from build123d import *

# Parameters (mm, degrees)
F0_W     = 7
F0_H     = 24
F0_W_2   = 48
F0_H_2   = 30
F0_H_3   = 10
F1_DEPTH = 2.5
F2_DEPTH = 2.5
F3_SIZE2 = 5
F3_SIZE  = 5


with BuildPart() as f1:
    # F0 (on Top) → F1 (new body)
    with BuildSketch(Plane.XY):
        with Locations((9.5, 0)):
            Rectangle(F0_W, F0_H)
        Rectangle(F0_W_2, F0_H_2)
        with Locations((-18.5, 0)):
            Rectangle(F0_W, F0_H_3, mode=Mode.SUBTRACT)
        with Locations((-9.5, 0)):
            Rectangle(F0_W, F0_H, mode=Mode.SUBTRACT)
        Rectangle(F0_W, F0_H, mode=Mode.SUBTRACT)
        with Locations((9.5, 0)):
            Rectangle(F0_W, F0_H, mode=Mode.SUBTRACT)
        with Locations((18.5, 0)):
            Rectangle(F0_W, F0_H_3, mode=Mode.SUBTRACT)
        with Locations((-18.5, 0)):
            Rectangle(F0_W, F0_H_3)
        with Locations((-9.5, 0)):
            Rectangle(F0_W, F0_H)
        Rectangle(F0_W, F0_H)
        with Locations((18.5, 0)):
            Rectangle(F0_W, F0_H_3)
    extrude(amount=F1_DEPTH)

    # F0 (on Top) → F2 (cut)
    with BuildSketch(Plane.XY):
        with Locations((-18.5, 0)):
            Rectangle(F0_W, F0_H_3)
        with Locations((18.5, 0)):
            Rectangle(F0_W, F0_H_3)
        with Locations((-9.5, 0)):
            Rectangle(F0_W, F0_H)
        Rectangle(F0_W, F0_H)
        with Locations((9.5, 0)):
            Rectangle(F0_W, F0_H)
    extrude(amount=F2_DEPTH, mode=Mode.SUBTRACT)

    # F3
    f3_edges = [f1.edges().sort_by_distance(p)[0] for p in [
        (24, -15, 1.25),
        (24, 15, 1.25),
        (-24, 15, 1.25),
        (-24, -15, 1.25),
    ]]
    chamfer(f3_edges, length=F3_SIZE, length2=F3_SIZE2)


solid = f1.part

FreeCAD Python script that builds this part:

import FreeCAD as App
import Part
import Sketcher
from FreeCAD import Vector
Q = App.Units.Quantity


def edges_at(feature, points):
    """Names of the edges that pass closest to the given points."""
    edges = feature.Shape.Edges
    near = lambda p: min(range(len(edges)), key=lambda i: edges[i].distToShape(Part.Vertex(*p))[0])
    return sorted({f"Edge{near(p) + 1}" for p in points})


def add_polygon(sketch, points):
    """Adds a closed chain of lines whose ends are joined by coincident constraints."""
    first, n = sketch.GeometryCount, len(points)
    for a, b in zip(points, points[1:] + points[:1]):
        sketch.addGeometry(Part.LineSegment(App.Vector(*a, 0), App.Vector(*b, 0)), False)
    for i in range(n):
        sketch.addConstraint(Sketcher.Constraint("Coincident", first + i, 2, first + (i + 1) % n, 1))

doc = App.newDocument("Part")
body = doc.addObject("PartDesign::Body", "Body")

# Sketch on XY plane
sketch1 = body.newObject("Sketcher::SketchObject", "Sketch")
sketch1.AttachmentSupport = (doc.getObject("XY_Plane"), [""])
sketch1.MapMode = "FlatFace"
add_polygon(sketch1, [(-24, 15), (-24, -15), (24, -15), (24, 15)])  # lines 0-3
add_polygon(sketch1, [(13, -12), (6, -12), (6, 12), (13, 12)])  # lines 4-7
sketch1.addConstraint(Sketcher.Constraint("Vertical", 0))
sketch1.addConstraint(Sketcher.Constraint("Horizontal", 1))
sketch1.addConstraint(Sketcher.Constraint("Vertical", 2))
sketch1.addConstraint(Sketcher.Constraint("Horizontal", 3))
sketch1.addConstraint(Sketcher.Constraint("Horizontal", 4))
sketch1.addConstraint(Sketcher.Constraint("Vertical", 5))
sketch1.addConstraint(Sketcher.Constraint("Horizontal", 6))
sketch1.addConstraint(Sketcher.Constraint("Vertical", 7))
sketch1.addConstraint(Sketcher.Constraint("Symmetric", 0, 2, 2, 2, -1, 1))
sketch1.addConstraint(Sketcher.Constraint("DistanceX", 1, 1, 1, 2, Q("48 mm")))
sketch1.addConstraint(Sketcher.Constraint("DistanceX", 4, 2, 4, 1, Q("7 mm")))
sketch1.addConstraint(Sketcher.Constraint("DistanceY", 0, 2, 0, 1, Q("30 mm")))
sketch1.addConstraint(Sketcher.Constraint("DistanceY", 5, 1, 5, 2, Q("24 mm")))
sketch1.addConstraint(Sketcher.Constraint("DistanceX", -1, 1, 4, 2, Q("6 mm")))
sketch1.addConstraint(Sketcher.Constraint("DistanceY", 4, 2, -1, 1, Q("12 mm")))
pad1 = body.newObject("PartDesign::Pad", "Pad")
pad1.Profile = sketch1
pad1.Length = 2.5

# Sketch on XY plane
sketch2 = body.newObject("Sketcher::SketchObject", "Sketch001")
sketch2.AttachmentSupport = (doc.getObject("XY_Plane"), [""])
sketch2.MapMode = "FlatFace"
add_polygon(sketch2, [(-22, 5), (-22, -5), (-15, -5), (-15, 5)])  # lines 0-3
add_polygon(sketch2, [(15, 5), (15, -5), (22, -5), (22, 5)])  # lines 4-7
add_polygon(sketch2, [(-13, 12), (-13, -12), (-6, -12), (-6, 12)])  # lines 8-11
add_polygon(sketch2, [(-3.5, 12), (-3.5, -12), (3.5, -12), (3.5, 12)])  # lines 12-15
add_polygon(sketch2, [(6, 12), (6, -12), (13, -12), (13, 12)])  # lines 16-19
sketch2.addConstraint(Sketcher.Constraint("Vertical", 0))
sketch2.addConstraint(Sketcher.Constraint("Horizontal", 1))
sketch2.addConstraint(Sketcher.Constraint("Vertical", 2))
sketch2.addConstraint(Sketcher.Constraint("Horizontal", 3))
sketch2.addConstraint(Sketcher.Constraint("Vertical", 4))
sketch2.addConstraint(Sketcher.Constraint("Horizontal", 5))
sketch2.addConstraint(Sketcher.Constraint("Vertical", 6))
sketch2.addConstraint(Sketcher.Constraint("Horizontal", 7))
sketch2.addConstraint(Sketcher.Constraint("Vertical", 8))
sketch2.addConstraint(Sketcher.Constraint("Horizontal", 9))
sketch2.addConstraint(Sketcher.Constraint("Vertical", 10))
sketch2.addConstraint(Sketcher.Constraint("Horizontal", 11))
sketch2.addConstraint(Sketcher.Constraint("Vertical", 12))
sketch2.addConstraint(Sketcher.Constraint("Horizontal", 13))
sketch2.addConstraint(Sketcher.Constraint("Vertical", 14))
sketch2.addConstraint(Sketcher.Constraint("Horizontal", 15))
sketch2.addConstraint(Sketcher.Constraint("Vertical", 16))
sketch2.addConstraint(Sketcher.Constraint("Horizontal", 17))
sketch2.addConstraint(Sketcher.Constraint("Vertical", 18))
sketch2.addConstraint(Sketcher.Constraint("Horizontal", 19))
sketch2.addConstraint(Sketcher.Constraint("Symmetric", 2, 2, 4, 2, -1, 1))
sketch2.addConstraint(Sketcher.Constraint("Symmetric", 0, 2, 6, 2, -1, 1))
sketch2.addConstraint(Sketcher.Constraint("Symmetric", 12, 2, 14, 2, -1, 1))
sketch2.addConstraint(Sketcher.Constraint("Symmetric", 10, 2, 16, 2, -1, 1))
sketch2.addConstraint(Sketcher.Constraint("Symmetric", 8, 2, 18, 2, -1, 1))
sketch2.addConstraint(Sketcher.Constraint("Horizontal", 1, 2, 4, 2))
sketch2.addConstraint(Sketcher.Constraint("Horizontal", 9, 2, 12, 2))
sketch2.addConstraint(Sketcher.Constraint("Horizontal", 11, 2, 14, 2))
sketch2.addConstraint(Sketcher.Constraint("Equal", 7, 9))
sketch2.addConstraint(Sketcher.Constraint("Equal", 11, 13))
sketch2.addConstraint(Sketcher.Constraint("DistanceX", 1, 1, 1, 2, Q("7 mm")))
sketch2.addConstraint(Sketcher.Constraint("DistanceY", 0, 2, 0, 1, Q("10 mm")))
sketch2.addConstraint(Sketcher.Constraint("DistanceY", 8, 2, 8, 1, Q("24 mm")))
sketch2.addConstraint(Sketcher.Constraint("DistanceX", 0, 2, -1, 1, Q("22 mm")))
sketch2.addConstraint(Sketcher.Constraint("DistanceX", 8, 2, -1, 1, Q("13 mm")))
pocket1 = body.newObject("PartDesign::Pocket", "Pocket")
pocket1.Profile = sketch2
pocket1.Length = 2.5
pocket1.Reversed = True
doc.recompute()

chamfer = body.newObject("PartDesign::Chamfer", "Chamfer")
chamfer.Base = (pocket1, edges_at(pocket1, [
    (24, -15, 1.25),
    (24, 15, 1.25),
    (-24, 15, 1.25),
    (-24, -15, 1.25),
]))
chamfer.ChamferType = "Two distances"
chamfer.Size = 5
chamfer.Size2 = 5

doc.recompute()
